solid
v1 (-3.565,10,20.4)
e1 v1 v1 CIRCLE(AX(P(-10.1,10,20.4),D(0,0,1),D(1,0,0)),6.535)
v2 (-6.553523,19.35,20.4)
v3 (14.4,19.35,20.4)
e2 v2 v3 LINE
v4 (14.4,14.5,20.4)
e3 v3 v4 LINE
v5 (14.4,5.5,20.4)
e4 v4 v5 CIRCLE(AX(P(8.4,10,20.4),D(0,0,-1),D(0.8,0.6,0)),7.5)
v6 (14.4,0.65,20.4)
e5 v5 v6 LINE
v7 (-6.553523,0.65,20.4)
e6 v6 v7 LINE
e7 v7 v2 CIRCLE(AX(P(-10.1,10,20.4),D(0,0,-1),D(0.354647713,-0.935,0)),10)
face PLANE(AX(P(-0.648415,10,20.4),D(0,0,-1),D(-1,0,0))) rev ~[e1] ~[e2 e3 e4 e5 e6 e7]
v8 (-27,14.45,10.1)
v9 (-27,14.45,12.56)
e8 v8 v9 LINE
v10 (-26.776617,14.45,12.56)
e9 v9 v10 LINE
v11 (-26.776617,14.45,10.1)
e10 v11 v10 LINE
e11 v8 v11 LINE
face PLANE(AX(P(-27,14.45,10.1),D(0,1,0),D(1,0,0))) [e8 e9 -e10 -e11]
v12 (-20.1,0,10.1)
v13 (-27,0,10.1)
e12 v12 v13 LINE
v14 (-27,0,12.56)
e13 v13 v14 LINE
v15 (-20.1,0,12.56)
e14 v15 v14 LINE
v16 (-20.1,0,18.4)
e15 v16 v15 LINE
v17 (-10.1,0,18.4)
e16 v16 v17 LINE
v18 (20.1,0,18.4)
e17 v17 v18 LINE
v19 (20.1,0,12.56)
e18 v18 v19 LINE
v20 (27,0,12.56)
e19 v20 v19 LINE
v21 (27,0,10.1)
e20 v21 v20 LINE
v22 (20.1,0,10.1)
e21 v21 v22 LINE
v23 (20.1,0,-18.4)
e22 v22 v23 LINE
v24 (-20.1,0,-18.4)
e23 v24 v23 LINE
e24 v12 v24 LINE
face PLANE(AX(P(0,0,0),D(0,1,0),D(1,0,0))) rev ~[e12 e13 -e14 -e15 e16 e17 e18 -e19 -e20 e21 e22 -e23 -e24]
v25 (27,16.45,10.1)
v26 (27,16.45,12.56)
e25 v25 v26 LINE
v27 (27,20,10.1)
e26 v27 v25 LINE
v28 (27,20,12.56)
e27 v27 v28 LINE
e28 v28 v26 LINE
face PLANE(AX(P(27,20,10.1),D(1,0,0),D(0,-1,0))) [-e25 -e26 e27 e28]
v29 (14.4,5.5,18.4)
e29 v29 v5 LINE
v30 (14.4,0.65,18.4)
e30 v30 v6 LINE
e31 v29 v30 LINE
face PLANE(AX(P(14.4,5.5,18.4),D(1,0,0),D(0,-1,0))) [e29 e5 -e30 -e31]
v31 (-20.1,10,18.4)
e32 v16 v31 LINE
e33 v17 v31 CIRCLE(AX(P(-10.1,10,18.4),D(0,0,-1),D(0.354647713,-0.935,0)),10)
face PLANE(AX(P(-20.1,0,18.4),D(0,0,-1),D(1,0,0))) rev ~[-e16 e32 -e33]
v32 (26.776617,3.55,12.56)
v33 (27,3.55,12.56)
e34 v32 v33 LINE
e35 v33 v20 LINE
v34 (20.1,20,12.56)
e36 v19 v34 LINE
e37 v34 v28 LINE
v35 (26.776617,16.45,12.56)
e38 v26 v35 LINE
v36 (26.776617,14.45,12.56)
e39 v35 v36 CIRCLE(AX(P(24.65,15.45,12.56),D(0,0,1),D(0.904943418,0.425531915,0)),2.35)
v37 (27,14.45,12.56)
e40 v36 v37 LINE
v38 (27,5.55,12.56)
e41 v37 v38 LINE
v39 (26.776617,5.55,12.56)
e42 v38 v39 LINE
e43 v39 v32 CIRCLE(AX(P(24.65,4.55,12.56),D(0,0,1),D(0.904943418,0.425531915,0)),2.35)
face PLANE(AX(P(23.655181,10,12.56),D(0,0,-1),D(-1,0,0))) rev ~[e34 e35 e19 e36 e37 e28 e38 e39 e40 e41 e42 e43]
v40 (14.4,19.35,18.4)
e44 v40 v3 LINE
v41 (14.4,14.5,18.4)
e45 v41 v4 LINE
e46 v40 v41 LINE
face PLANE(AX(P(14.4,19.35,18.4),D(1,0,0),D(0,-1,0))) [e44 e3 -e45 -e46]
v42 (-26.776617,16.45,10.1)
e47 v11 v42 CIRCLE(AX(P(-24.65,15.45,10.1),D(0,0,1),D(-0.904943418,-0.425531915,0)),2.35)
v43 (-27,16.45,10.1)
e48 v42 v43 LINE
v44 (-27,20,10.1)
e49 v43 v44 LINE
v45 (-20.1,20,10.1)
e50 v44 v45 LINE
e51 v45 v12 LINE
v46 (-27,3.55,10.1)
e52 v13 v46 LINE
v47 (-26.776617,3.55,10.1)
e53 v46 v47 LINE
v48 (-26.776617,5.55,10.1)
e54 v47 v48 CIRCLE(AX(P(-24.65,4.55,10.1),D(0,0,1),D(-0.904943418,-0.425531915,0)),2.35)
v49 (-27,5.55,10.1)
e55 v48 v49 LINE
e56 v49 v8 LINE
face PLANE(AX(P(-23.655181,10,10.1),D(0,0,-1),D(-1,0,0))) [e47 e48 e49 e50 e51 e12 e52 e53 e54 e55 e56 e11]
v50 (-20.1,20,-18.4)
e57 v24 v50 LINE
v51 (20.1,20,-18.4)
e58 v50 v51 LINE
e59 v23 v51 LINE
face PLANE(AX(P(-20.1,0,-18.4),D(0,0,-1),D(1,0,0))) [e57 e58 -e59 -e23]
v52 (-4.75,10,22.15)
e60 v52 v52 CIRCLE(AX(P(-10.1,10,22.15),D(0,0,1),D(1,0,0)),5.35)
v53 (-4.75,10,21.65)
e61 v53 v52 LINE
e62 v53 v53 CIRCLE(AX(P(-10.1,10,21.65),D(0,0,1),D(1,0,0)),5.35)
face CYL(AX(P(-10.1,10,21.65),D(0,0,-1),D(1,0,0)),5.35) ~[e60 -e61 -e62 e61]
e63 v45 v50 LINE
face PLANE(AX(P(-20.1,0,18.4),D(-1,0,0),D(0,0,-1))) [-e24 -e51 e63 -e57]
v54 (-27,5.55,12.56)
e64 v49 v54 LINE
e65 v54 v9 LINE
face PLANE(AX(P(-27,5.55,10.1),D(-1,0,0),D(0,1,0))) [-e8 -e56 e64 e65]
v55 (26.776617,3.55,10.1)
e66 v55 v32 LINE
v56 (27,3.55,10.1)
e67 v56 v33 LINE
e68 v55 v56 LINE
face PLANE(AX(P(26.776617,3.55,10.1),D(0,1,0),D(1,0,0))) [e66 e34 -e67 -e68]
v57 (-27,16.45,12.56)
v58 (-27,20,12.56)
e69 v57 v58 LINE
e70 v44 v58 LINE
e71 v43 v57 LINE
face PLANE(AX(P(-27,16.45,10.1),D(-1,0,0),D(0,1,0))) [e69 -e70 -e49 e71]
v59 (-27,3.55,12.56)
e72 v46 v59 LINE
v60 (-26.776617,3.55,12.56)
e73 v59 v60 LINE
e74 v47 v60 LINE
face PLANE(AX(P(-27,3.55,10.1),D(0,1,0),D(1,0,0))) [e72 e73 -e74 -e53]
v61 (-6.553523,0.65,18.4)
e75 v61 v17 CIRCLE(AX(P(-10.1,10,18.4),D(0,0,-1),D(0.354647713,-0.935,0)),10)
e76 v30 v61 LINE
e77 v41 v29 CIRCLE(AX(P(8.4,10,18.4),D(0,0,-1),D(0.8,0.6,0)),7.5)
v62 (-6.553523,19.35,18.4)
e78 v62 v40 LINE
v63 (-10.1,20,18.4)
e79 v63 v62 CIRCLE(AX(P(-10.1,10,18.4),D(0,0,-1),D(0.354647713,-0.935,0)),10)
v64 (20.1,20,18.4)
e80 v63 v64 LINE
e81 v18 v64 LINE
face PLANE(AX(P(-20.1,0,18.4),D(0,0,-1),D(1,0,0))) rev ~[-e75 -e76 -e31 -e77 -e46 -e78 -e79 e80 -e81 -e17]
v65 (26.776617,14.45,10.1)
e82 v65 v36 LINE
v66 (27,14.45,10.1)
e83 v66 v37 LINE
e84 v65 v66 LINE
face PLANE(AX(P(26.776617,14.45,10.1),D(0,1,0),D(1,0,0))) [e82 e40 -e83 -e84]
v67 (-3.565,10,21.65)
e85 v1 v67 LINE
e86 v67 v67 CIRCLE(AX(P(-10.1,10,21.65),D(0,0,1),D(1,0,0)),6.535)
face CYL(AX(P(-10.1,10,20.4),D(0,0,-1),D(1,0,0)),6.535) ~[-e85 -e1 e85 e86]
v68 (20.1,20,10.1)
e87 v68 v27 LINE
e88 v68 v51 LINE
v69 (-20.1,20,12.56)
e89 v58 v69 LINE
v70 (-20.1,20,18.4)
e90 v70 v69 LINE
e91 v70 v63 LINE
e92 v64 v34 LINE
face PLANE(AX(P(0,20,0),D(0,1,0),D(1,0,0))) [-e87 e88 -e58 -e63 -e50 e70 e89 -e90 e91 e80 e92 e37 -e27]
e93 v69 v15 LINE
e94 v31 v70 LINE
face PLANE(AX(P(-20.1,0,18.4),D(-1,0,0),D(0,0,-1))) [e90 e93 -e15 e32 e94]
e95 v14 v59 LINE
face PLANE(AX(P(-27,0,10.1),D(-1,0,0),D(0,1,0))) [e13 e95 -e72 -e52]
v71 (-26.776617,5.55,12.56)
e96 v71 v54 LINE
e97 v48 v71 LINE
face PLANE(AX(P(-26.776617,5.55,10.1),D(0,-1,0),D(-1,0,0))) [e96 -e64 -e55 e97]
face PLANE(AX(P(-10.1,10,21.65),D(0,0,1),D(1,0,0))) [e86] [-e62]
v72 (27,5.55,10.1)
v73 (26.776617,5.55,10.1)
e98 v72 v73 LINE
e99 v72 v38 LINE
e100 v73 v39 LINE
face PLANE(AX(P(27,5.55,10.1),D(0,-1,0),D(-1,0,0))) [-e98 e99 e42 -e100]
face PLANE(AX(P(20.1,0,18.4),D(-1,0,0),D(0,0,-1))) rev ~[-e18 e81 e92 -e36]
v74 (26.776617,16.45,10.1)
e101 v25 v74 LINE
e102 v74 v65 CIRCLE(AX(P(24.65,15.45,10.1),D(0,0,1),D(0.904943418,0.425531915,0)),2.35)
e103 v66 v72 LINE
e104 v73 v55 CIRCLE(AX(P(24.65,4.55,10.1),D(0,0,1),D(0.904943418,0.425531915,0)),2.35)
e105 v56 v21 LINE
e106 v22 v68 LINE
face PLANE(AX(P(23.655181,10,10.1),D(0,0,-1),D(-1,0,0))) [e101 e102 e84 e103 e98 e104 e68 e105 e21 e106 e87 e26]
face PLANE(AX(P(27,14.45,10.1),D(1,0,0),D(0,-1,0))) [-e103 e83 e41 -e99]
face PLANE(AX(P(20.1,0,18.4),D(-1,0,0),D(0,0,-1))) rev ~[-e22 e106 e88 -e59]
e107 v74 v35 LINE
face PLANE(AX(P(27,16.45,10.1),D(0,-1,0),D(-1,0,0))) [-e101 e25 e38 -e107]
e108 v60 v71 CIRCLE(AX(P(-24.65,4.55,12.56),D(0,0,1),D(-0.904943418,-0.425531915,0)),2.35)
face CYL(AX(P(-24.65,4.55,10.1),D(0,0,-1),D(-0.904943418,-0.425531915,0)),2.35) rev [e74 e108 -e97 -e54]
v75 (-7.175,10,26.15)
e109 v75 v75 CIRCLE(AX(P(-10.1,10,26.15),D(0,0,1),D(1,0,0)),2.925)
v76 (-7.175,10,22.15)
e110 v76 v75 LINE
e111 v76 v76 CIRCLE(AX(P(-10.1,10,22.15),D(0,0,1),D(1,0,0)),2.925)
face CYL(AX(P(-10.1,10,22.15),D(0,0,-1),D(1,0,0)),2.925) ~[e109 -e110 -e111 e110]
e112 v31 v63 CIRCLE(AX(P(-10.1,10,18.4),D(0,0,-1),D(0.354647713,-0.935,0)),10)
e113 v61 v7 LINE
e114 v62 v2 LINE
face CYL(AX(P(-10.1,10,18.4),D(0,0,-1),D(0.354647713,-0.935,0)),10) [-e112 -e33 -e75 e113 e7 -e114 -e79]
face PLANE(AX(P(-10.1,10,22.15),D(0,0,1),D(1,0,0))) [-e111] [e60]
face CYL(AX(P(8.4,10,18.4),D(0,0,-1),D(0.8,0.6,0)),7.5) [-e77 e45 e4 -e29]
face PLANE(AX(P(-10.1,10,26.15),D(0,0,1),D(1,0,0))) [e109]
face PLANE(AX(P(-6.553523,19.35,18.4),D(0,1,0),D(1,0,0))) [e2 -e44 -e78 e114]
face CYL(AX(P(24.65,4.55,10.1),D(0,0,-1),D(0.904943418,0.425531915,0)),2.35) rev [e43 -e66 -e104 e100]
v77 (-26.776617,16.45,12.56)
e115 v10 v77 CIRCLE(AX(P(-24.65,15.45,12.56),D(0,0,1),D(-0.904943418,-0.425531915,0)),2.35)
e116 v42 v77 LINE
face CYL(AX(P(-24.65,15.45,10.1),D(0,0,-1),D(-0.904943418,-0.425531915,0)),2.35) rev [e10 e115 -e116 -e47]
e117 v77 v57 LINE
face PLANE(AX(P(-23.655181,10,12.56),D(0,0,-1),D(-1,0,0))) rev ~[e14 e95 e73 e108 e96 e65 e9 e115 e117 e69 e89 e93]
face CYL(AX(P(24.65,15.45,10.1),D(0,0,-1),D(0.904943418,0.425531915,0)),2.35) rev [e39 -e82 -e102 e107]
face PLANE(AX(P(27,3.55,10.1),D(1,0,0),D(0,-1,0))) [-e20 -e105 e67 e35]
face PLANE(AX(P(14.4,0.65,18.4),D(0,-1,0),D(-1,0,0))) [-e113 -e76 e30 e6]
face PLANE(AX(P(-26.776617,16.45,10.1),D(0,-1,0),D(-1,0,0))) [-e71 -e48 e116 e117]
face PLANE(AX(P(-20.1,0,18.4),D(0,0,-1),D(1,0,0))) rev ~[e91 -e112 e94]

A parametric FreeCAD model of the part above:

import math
import FreeCAD as App
import Part
import Sketcher

V = App.Vector


def add_polygon(sketch, points):
    """Adds a closed chain of lines whose ends are joined by coincident constraints."""
    first, n = sketch.GeometryCount, len(points)
    for a, b in zip(points, points[1:] + points[:1]):
        sketch.addGeometry(Part.LineSegment(App.Vector(*a, 0), App.Vector(*b, 0)), False)
    for i in range(n):
        sketch.addConstraint(Sketcher.Constraint("Coincident", first + i, 2, first + (i + 1) % n, 1))

doc = App.newDocument("Part")
body = doc.addObject("PartDesign::Body", "Body")

sketch1 = body.newObject("Sketcher::SketchObject", "Sketch")
sketch1.AttachmentSupport = (doc.getObject("XZ_Plane"), [""])
sketch1.MapMode = "FlatFace"
add_polygon(sketch1, [(-20, -18), (-20, 18), (20, 18), (20, -18)])
sketch1.addConstraint([
    Sketcher.Constraint("Vertical", 0),
    Sketcher.Constraint("Horizontal", 1),
    Sketcher.Constraint("Vertical", 2),
    Sketcher.Constraint("Horizontal", 3),
    Sketcher.Constraint("Symmetric", 0, 2, 2, 2, -1, 1),
    Sketcher.Constraint("DistanceX", 1, 1, 1, 2, 40.2),
    Sketcher.Constraint("DistanceY", 0, 1, 0, 2, 36.8),
])
pad1 = body.newObject("PartDesign::Pad", "Pad")
pad1.Profile = sketch1
pad1.Length = 20
pad1.Reversed = True

sketch2 = body.newObject("Sketcher::SketchObject", "Sketch001")
sketch2.AttachmentSupport = (doc.getObject("XY_Plane"), [""])
sketch2.MapMode = "FlatFace"
sketch2.AttachmentOffset = App.Placement(V(0, 0, 18.4), App.Rotation())
sketch2.addGeometry([
    Part.LineSegment(V(14.4, 19.4, 0), V(-6.6, 19.4, 0)),
    Part.ArcOfCircle(Part.Circle(V(-10.1, 10, 0), V(0, 0, 1), 10), math.radians(69), math.radians(291)),
    Part.LineSegment(V(-6.6, 0.7, 0), V(14.4, 0.7, 0)),
    Part.LineSegment(V(14.4, 0.7, 0), V(14.4, 5.5, 0)),
    Part.ArcOfCircle(Part.Circle(V(8.4, 10, 0), V(0, 0, 1), 7.5), math.radians(-37), math.radians(37)),
    Part.LineSegment(V(14.4, 14.5, 0), V(14.4, 19.4, 0)),
], False)
sketch2.addConstraint([
    Sketcher.Constraint("Coincident", 0, 2, 1, 1),
    Sketcher.Constraint("Coincident", 1, 2, 2, 1),
    Sketcher.Constraint("Coincident", 2, 2, 3, 1),
    Sketcher.Constraint("Coincident", 3, 2, 4, 1),
    Sketcher.Constraint("Coincident", 4, 2, 5, 1),
    Sketcher.Constraint("Coincident", 5, 2, 0, 1),
    Sketcher.Constraint("Horizontal", 0),
    Sketcher.Constraint("Horizontal", 2),
    Sketcher.Constraint("Vertical", 3),
    Sketcher.Constraint("Vertical", 5),
    Sketcher.Constraint("Horizontal", 1, 3, 4, 3),
    Sketcher.Constraint("Vertical", 0, 2, 1, 2),
    Sketcher.Constraint("Vertical", 3, 2, 4, 2),
    Sketcher.Constraint("Radius", 1, 10.0),
    Sketcher.Constraint("Radius", 4, 7.5),
    Sketcher.Constraint("DistanceY", -1, 1, 1, 3, 10.0),
    Sketcher.Constraint("DistanceX", 4, 3, 2, 2, 6.0),
    Sketcher.Constraint("DistanceY", 3, 1, 3, 2, 4.85),
    Sketcher.Constraint("DistanceX", 1, 3, -1, 1, 10.1),
    Sketcher.Constraint("DistanceX", -1, 1, 4, 3, 8.4),
])
pad2 = body.newObject("PartDesign::Pad", "Pad001")
pad2.Profile = sketch2
pad2.Length = 2

sketch3 = body.newObject("Sketcher::SketchObject", "Sketch002")
sketch3.AttachmentSupport = (doc.getObject("XY_Plane"), [""])
sketch3.MapMode = "FlatFace"
sketch3.AttachmentOffset = App.Placement(V(0, 0, 20.4), App.Rotation())
sketch3.addGeometry(Part.Circle(V(-10, 10, 0), V(0, 0, 1), 7), False)
sketch3.addConstraint([
    Sketcher.Constraint("Diameter", 0, 13.07),
    Sketcher.Constraint("DistanceY", -1, 1, 0, 3, 10.0),
    Sketcher.Constraint("DistanceX", 0, 3, -1, 1, 10.1),
])
pad3 = body.newObject("PartDesign::Pad", "Pad002")
pad3.Profile = sketch3
pad3.Length = 1.25

sketch4 = body.newObject("Sketcher::SketchObject", "Sketch003")
sketch4.AttachmentSupport = (doc.getObject("XY_Plane"), [""])
sketch4.MapMode = "FlatFace"
sketch4.AttachmentOffset = App.Placement(V(0, 0, 21.65), App.Rotation())
sketch4.addGeometry(Part.Circle(V(-10, 10, 0), V(0, 0, 1), 5), False)
sketch4.addConstraint([
    Sketcher.Constraint("Diameter", 0, 10.7),
    Sketcher.Constraint("DistanceY", -1, 1, 0, 3, 10.0),
    Sketcher.Constraint("DistanceX", 0, 3, -1, 1, 10.1),
])
pad4 = body.newObject("PartDesign::Pad", "Pad003")
pad4.Profile = sketch4
pad4.Length = 0.5

sketch5 = body.newObject("Sketcher::SketchObject", "Sketch004")
sketch5.AttachmentSupport = (doc.getObject("XY_Plane"), [""])
sketch5.MapMode = "FlatFace"
sketch5.AttachmentOffset = App.Placement(V(0, 0, 22.15), App.Rotation())
sketch5.addGeometry(Part.Circle(V(-10.1, 10, 0), V(0, 0, 1), 2.9), False)
sketch5.addConstraint([
    Sketcher.Constraint("Diameter", 0, 5.85),
    Sketcher.Constraint("DistanceY", -1, 1, 0, 3, 10.0),
    Sketcher.Constraint("DistanceX", 0, 3, -1, 1, 10.1),
])
pad5 = body.newObject("PartDesign::Pad", "Pad004")
pad5.Profile = sketch5
pad5.Length = 4

sketch6 = body.newObject("Sketcher::SketchObject", "Sketch005")
sketch6.AttachmentSupport = (doc.getObject("XY_Plane"), [""])
sketch6.MapMode = "FlatFace"
sketch6.AttachmentOffset = App.Placement(V(0, 0, 10.1), App.Rotation())
sketch6.addGeometry([
    Part.LineSegment(V(-20.1, 20, 0), V(-20.1, 0, 0)),
    Part.LineSegment(V(-20.1, 0, 0), V(-27, 0, 0)),
    Part.LineSegment(V(-27, 0, 0), V(-27, 3.55, 0)),
    Part.LineSegment(V(-27, 3.55, 0), V(-26.78, 3.55, 0)),
    Part.ArcOfCircle(Part.Circle(V(-24.65, 4.55, 0), V(0, 0, 1), 2.35), math.radians(-155), math.radians(155)),
    Part.LineSegment(V(-26.78, 5.55, 0), V(-27, 5.55, 0)),
    Part.LineSegment(V(-27, 5.55, 0), V(-27, 14.45, 0)),
    Part.LineSegment(V(-27, 14.45, 0), V(-26.78, 14.45, 0)),
    Part.ArcOfCircle(Part.Circle(V(-24.65, 15.45, 0), V(0, 0, 1), 2.35), math.radians(-155), math.radians(155)),
    Part.LineSegment(V(-26.78, 16.45, 0), V(-27, 16.45, 0)),
    Part.LineSegment(V(-27, 16.45, 0), V(-27, 20, 0)),
    Part.LineSegment(V(-27, 20, 0), V(-20.1, 20, 0)),
    Part.LineSegment(V(27, 3.55, 0), V(27, 0, 0)),
    Part.LineSegment(V(27, 0, 0), V(20.1, 0, 0)),
    Part.LineSegment(V(20.1, 0, 0), V(20.1, 20, 0)),
    Part.LineSegment(V(20.1, 20, 0), V(27, 20, 0)),
    Part.LineSegment(V(27, 20, 0), V(27, 16.45, 0)),
    Part.LineSegment(V(27, 16.45, 0), V(26.78, 16.45, 0)),
    Part.ArcOfCircle(Part.Circle(V(24.65, 15.45, 0), V(0, 0, 1), 2.35), math.radians(25), math.radians(335)),
    Part.LineSegment(V(26.78, 14.45, 0), V(27, 14.45, 0)),
    Part.LineSegment(V(27, 14.45, 0), V(27, 5.55, 0)),
    Part.LineSegment(V(27, 5.55, 0), V(26.78, 5.55, 0)),
    Part.ArcOfCircle(Part.Circle(V(24.65, 4.55, 0), V(0, 0, 1), 2.35), math.radians(25), math.radians(335)),
    Part.LineSegment(V(26.78, 3.55, 0), V(27, 3.55, 0)),
], False)
sketch6.addConstraint([
    Sketcher.Constraint("Coincident", 0, 2, 1, 1),
    Sketcher.Constraint("Coincident", 1, 2, 2, 1),
    Sketcher.Constraint("Coincident", 2, 2, 3, 1),
    Sketcher.Constraint("Coincident", 3, 2, 4, 1),
    Sketcher.Constraint("Coincident", 4, 2, 5, 1),
    Sketcher.Constraint("Coincident", 5, 2, 6, 1),
    Sketcher.Constraint("Coincident", 6, 2, 7, 1),
    Sketcher.Constraint("Coincident", 7, 2, 8, 1),
    Sketcher.Constraint("Coincident", 8, 2, 9, 1),
    Sketcher.Constraint("Coincident", 9, 2, 10, 1),
    Sketcher.Constraint("Coincident", 10, 2, 11, 1),
    Sketcher.Constraint("Coincident", 11, 2, 0, 1),
    Sketcher.Constraint("Coincident", 12, 2, 13, 1),
    Sketcher.Constraint("Coincident", 13, 2, 14, 1),
    Sketcher.Constraint("Coincident", 14, 2, 15, 1),
    Sketcher.Constraint("Coincident", 15, 2, 16, 1),
    Sketcher.Constraint("Coincident", 16, 2, 17, 1),
    Sketcher.Constraint("Coincident", 17, 2, 18, 1),
    Sketcher.Constraint("Coincident", 18, 2, 19, 1),
    Sketcher.Constraint("Coincident", 19, 2, 20, 1),
    Sketcher.Constraint("Coincident", 20, 2, 21, 1),
    Sketcher.Constraint("Coincident", 21, 2, 22, 1),
    Sketcher.Constraint("Coincident", 22, 2, 23, 1),
    Sketcher.Constraint("Coincident", 23, 2, 12, 1),
    Sketcher.Constraint("Vertical", 0),
    Sketcher.Constraint("Horizontal", 1),
    Sketcher.Constraint("Vertical", 2),
    Sketcher.Constraint("Horizontal", 3),
    Sketcher.Constraint("Horizontal", 5),
    Sketcher.Constraint("Vertical", 6),
    Sketcher.Constraint("Horizontal", 7),
    Sketcher.Constraint("Horizontal", 9),
    Sketcher.Constraint("Vertical", 10),
    Sketcher.Constraint("Horizontal", 11),
    Sketcher.Constraint("Vertical", 12),
    Sketcher.Constraint("Horizontal", 13),
    Sketcher.Constraint("Vertical", 14),
    Sketcher.Constraint("Horizontal", 15),
    Sketcher.Constraint("Vertical", 16),
    Sketcher.Constraint("Horizontal", 17),
    Sketcher.Constraint("Horizontal", 19),
    Sketcher.Constraint("Vertical", 20),
    Sketcher.Constraint("Horizontal", 21),
    Sketcher.Constraint("Horizontal", 23),
    Sketcher.Constraint("Equal", 4, 8),
    Sketcher.Constraint("Equal", 8, 18),
    Sketcher.Constraint("Equal", 18, 22),
    Sketcher.Constraint("Symmetric", 1, 2, 12, 2, -1, 1),
    Sketcher.Constraint("Symmetric", 8, 3, 18, 3, -2),
    Sketcher.Constraint("Symmetric", 4, 3, 22, 3, -2),
    Sketcher.Constraint("Symmetric", 0, 2, 13, 2, -2),
    Sketcher.Constraint("Symmetric", 10, 2, 15, 2, -2),
    Sketcher.Constraint("Symmetric", 6, 2, 19, 2, -2),
    Sketcher.Constraint("Horizontal", 9, 2, 16, 2),
    Sketcher.Constraint("Horizontal", 5, 2, 20, 2),
    Sketcher.Constraint("Horizontal", 3, 2, 22, 2),
    Sketcher.Constraint("Vertical", 4, 3, 8, 3),
    Sketcher.Constraint("Vertical", 3, 2, 4, 2),
    Sketcher.Constraint("Vertical", 2, 2, 5, 2),
    Sketcher.Constraint("Vertical", 4, 2, 7, 2),
    Sketcher.Constraint("Vertical", 7, 2, 8, 2),
    Sketcher.Constraint("Vertical", 6, 2, 9, 2),
    Sketcher.Constraint("Equal", 2, 10),
    Sketcher.Constraint("DistanceY", 0, 2, 0, 1, 20.0),
    Sketcher.Constraint("Radius", 4, 2.35),
    Sketcher.Constraint("DistanceX", 1, 2, 1, 1, 6.9),
    Sketcher.Constraint("DistanceY", 6, 1, 6, 2, 8.9),
    Sketcher.Constraint("DistanceX", 1, 2, -1, 1, 27.0),
    Sketcher.Constraint("DistanceY", 2, 2, 4, 3, 1.0),
    Sketcher.Constraint("DistanceX", 8, 3, 18, 3, 49.3),
])
pad6 = body.newObject("PartDesign::Pad", "Pad005")
pad6.Profile = sketch6
pad6.Length = 2.46

doc.recompute()
